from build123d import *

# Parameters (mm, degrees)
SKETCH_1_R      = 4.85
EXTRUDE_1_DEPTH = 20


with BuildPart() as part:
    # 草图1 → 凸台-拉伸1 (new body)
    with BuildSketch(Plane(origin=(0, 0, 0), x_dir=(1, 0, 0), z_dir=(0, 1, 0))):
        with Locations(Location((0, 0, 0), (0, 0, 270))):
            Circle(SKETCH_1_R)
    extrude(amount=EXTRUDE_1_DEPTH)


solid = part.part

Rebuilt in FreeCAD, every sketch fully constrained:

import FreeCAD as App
import Part
import Sketcher
Q = App.Units.Quantity

doc = App.newDocument("Part")
body = doc.addObject("PartDesign::Body", "Body")

# Sketch on XZ plane
sketch1 = doc.addObject("Sketcher::SketchObject", "Sketch")
body.addObject(sketch1)
sketch1.AttachmentSupport = (doc.XZ_Plane, [""])
sketch1.MapMode = "FlatFace"
sketch1.addGeometry(Part.Circle(App.Vector(0, 0, 0), App.Vector(0, 0, 1), 4.8), False)
sketch1.addConstraint([
    Sketcher.Constraint("Coincident", 0, 3, -1, 1),
    Sketcher.Constraint("Diameter", 0, Q("9.7 mm")),
])
pad1 = doc.addObject("PartDesign::Pad", "Pad")
body.addObject(pad1)
pad1.Profile = sketch1
pad1.Length = 20
pad1.Reversed = True

doc.recompute()
